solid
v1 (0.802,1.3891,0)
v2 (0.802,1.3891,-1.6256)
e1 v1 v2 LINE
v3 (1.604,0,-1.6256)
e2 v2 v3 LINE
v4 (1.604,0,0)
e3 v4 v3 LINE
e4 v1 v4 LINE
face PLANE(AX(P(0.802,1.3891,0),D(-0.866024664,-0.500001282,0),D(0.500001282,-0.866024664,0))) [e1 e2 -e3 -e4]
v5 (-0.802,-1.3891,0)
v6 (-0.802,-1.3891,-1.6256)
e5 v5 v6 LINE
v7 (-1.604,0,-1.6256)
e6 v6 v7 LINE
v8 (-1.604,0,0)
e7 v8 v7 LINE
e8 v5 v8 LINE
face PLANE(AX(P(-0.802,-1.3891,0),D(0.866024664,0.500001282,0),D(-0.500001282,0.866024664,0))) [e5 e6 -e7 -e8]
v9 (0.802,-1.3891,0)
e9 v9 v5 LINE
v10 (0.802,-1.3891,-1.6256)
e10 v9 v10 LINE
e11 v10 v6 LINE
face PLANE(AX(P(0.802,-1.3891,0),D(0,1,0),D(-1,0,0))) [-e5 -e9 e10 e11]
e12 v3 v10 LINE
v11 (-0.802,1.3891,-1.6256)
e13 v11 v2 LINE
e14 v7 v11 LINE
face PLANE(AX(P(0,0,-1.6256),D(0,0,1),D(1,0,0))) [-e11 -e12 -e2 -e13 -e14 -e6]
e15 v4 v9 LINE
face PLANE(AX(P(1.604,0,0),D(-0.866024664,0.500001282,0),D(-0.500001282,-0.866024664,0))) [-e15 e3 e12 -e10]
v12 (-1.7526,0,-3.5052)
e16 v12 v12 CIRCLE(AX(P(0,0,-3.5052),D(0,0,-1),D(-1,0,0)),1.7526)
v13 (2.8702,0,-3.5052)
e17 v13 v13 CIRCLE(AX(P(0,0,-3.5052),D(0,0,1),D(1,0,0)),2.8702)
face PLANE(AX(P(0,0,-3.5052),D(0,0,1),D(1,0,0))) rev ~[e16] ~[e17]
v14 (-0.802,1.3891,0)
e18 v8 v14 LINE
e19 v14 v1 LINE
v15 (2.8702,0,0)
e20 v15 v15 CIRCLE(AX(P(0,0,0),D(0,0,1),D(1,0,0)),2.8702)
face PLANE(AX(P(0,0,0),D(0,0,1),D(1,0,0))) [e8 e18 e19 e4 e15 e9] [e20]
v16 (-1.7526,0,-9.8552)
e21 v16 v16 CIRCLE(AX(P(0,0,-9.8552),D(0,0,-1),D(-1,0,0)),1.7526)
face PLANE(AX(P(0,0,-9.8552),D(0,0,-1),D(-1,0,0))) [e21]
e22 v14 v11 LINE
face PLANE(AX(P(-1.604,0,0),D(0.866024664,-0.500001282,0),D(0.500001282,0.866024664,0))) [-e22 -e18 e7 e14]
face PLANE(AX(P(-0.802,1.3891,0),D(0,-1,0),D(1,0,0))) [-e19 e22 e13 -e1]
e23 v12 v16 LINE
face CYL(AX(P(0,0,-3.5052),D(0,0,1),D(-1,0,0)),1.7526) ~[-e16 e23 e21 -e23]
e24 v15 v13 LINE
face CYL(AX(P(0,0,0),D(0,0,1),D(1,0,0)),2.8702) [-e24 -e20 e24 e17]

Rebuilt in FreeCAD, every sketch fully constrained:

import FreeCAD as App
import Part
import Sketcher
Q = App.Units.Quantity


def add_polygon(sketch, points):
    """Adds a closed chain of lines whose ends are joined by coincident constraints."""
    first, n = sketch.GeometryCount, len(points)
    for a, b in zip(points, points[1:] + points[:1]):
        sketch.addGeometry(Part.LineSegment(App.Vector(*a, 0), App.Vector(*b, 0)), False)
    for i in range(n):
        sketch.addConstraint(Sketcher.Constraint("Coincident", first + i, 2, first + (i + 1) % n, 1))

doc = App.newDocument("Part")
params = doc.addObject("Spreadsheet::Sheet", "Params")
for row, (alias, value) in enumerate([
    ("sketch1_diameter", "0.226 in"),
    ("pad1_length", "0.138 in"),
    ("sketch2_diameter", "0.138 in"),
    ("pad2_length", "0.25 in"),
    ("pocket1_length", "0.064 in"),
], start=1):
    params.set(f"A{row}", alias)
    params.set(f"B{row}", "=" + value)
    params.setAlias(f"B{row}", alias)

body = doc.addObject("PartDesign::Body", "Body")

# Sketch on XY plane
sketch1 = body.newObject("Sketcher::SketchObject", "Sketch")
sketch1.AttachmentSupport = (doc.getObject("XY_Plane"), [""])
sketch1.MapMode = "FlatFace"
sketch1.addGeometry(Part.Circle(App.Vector(0, 0, 0), App.Vector(0, 0, 1), 2.9), False)
sketch1.addConstraint(Sketcher.Constraint("Coincident", 0, 3, -1, 1))
sketch1.addConstraint(Sketcher.Constraint("Diameter", 0, Q("0.226 in")))
sketch1.setExpression("Constraints[1]", "Params.sketch1_diameter")
pad1 = body.newObject("PartDesign::Pad", "Pad")
pad1.Profile = sketch1
pad1.setExpression("Length", "Params.pad1_length")
pad1.Reversed = True

# Sketch on XY plane
sketch2 = body.newObject("Sketcher::SketchObject", "Sketch001")
sketch2.AttachmentSupport = (doc.getObject("XY_Plane"), [""])
sketch2.MapMode = "FlatFace"
sketch2.AttachmentOffset = App.Placement(App.Vector(0, 0, -0.138 * 25.4), App.Rotation())
sketch2.addGeometry(Part.Circle(App.Vector(0, 0, 0), App.Vector(0, 0, 1), 1.8), False)
sketch2.addConstraint(Sketcher.Constraint("Coincident", 0, 3, -1, 1))
sketch2.addConstraint(Sketcher.Constraint("Diameter", 0, Q("0.138 in")))
sketch2.setExpression("Constraints[1]", "Params.sketch2_diameter")
pad2 = body.newObject("PartDesign::Pad", "Pad001")
pad2.Profile = sketch2
pad2.setExpression("Length", "Params.pad2_length")
pad2.Reversed = True

# Sketch on XY plane
sketch3 = body.newObject("Sketcher::SketchObject", "Sketch002")
sketch3.AttachmentSupport = (doc.getObject("XY_Plane"), [""])
sketch3.MapMode = "FlatFace"
add_polygon(sketch3, [(0.8, -1.4), (1.6, 0), (0.8, 1.4), (-0.8, 1.4), (-1.6, 0), (-0.8, -1.4)])  # lines 0-5
sketch3.addConstraint(Sketcher.Constraint("Horizontal", 2))
sketch3.addConstraint(Sketcher.Constraint("Horizontal", 5))
sketch3.addConstraint(Sketcher.Constraint("Symmetric", 0, 2, 3, 2, -1, 1))
sketch3.addConstraint(Sketcher.Constraint("Symmetric", 1, 2, 4, 2, -1, 1))
sketch3.addConstraint(Sketcher.Constraint("PointOnObject", 0, 2, -1))
sketch3.addConstraint(Sketcher.Constraint("Parallel", 0, 3))
sketch3.addConstraint(Sketcher.Constraint("Vertical", 2, 2, 4, 2))
sketch3.addConstraint(Sketcher.Constraint("Angle", 0, Q("60 deg")))
sketch3.addConstraint(Sketcher.Constraint("DistanceY", 4, 2, 2, 2, Q("0.109378 in")))
sketch3.addConstraint(Sketcher.Constraint("DistanceX", 2, 2, 2, 1, 1.604))
pocket1 = body.newObject("PartDesign::Pocket", "Pocket")
pocket1.Profile = sketch3
pocket1.setExpression("Length", "Params.pocket1_length")

doc.recompute()
